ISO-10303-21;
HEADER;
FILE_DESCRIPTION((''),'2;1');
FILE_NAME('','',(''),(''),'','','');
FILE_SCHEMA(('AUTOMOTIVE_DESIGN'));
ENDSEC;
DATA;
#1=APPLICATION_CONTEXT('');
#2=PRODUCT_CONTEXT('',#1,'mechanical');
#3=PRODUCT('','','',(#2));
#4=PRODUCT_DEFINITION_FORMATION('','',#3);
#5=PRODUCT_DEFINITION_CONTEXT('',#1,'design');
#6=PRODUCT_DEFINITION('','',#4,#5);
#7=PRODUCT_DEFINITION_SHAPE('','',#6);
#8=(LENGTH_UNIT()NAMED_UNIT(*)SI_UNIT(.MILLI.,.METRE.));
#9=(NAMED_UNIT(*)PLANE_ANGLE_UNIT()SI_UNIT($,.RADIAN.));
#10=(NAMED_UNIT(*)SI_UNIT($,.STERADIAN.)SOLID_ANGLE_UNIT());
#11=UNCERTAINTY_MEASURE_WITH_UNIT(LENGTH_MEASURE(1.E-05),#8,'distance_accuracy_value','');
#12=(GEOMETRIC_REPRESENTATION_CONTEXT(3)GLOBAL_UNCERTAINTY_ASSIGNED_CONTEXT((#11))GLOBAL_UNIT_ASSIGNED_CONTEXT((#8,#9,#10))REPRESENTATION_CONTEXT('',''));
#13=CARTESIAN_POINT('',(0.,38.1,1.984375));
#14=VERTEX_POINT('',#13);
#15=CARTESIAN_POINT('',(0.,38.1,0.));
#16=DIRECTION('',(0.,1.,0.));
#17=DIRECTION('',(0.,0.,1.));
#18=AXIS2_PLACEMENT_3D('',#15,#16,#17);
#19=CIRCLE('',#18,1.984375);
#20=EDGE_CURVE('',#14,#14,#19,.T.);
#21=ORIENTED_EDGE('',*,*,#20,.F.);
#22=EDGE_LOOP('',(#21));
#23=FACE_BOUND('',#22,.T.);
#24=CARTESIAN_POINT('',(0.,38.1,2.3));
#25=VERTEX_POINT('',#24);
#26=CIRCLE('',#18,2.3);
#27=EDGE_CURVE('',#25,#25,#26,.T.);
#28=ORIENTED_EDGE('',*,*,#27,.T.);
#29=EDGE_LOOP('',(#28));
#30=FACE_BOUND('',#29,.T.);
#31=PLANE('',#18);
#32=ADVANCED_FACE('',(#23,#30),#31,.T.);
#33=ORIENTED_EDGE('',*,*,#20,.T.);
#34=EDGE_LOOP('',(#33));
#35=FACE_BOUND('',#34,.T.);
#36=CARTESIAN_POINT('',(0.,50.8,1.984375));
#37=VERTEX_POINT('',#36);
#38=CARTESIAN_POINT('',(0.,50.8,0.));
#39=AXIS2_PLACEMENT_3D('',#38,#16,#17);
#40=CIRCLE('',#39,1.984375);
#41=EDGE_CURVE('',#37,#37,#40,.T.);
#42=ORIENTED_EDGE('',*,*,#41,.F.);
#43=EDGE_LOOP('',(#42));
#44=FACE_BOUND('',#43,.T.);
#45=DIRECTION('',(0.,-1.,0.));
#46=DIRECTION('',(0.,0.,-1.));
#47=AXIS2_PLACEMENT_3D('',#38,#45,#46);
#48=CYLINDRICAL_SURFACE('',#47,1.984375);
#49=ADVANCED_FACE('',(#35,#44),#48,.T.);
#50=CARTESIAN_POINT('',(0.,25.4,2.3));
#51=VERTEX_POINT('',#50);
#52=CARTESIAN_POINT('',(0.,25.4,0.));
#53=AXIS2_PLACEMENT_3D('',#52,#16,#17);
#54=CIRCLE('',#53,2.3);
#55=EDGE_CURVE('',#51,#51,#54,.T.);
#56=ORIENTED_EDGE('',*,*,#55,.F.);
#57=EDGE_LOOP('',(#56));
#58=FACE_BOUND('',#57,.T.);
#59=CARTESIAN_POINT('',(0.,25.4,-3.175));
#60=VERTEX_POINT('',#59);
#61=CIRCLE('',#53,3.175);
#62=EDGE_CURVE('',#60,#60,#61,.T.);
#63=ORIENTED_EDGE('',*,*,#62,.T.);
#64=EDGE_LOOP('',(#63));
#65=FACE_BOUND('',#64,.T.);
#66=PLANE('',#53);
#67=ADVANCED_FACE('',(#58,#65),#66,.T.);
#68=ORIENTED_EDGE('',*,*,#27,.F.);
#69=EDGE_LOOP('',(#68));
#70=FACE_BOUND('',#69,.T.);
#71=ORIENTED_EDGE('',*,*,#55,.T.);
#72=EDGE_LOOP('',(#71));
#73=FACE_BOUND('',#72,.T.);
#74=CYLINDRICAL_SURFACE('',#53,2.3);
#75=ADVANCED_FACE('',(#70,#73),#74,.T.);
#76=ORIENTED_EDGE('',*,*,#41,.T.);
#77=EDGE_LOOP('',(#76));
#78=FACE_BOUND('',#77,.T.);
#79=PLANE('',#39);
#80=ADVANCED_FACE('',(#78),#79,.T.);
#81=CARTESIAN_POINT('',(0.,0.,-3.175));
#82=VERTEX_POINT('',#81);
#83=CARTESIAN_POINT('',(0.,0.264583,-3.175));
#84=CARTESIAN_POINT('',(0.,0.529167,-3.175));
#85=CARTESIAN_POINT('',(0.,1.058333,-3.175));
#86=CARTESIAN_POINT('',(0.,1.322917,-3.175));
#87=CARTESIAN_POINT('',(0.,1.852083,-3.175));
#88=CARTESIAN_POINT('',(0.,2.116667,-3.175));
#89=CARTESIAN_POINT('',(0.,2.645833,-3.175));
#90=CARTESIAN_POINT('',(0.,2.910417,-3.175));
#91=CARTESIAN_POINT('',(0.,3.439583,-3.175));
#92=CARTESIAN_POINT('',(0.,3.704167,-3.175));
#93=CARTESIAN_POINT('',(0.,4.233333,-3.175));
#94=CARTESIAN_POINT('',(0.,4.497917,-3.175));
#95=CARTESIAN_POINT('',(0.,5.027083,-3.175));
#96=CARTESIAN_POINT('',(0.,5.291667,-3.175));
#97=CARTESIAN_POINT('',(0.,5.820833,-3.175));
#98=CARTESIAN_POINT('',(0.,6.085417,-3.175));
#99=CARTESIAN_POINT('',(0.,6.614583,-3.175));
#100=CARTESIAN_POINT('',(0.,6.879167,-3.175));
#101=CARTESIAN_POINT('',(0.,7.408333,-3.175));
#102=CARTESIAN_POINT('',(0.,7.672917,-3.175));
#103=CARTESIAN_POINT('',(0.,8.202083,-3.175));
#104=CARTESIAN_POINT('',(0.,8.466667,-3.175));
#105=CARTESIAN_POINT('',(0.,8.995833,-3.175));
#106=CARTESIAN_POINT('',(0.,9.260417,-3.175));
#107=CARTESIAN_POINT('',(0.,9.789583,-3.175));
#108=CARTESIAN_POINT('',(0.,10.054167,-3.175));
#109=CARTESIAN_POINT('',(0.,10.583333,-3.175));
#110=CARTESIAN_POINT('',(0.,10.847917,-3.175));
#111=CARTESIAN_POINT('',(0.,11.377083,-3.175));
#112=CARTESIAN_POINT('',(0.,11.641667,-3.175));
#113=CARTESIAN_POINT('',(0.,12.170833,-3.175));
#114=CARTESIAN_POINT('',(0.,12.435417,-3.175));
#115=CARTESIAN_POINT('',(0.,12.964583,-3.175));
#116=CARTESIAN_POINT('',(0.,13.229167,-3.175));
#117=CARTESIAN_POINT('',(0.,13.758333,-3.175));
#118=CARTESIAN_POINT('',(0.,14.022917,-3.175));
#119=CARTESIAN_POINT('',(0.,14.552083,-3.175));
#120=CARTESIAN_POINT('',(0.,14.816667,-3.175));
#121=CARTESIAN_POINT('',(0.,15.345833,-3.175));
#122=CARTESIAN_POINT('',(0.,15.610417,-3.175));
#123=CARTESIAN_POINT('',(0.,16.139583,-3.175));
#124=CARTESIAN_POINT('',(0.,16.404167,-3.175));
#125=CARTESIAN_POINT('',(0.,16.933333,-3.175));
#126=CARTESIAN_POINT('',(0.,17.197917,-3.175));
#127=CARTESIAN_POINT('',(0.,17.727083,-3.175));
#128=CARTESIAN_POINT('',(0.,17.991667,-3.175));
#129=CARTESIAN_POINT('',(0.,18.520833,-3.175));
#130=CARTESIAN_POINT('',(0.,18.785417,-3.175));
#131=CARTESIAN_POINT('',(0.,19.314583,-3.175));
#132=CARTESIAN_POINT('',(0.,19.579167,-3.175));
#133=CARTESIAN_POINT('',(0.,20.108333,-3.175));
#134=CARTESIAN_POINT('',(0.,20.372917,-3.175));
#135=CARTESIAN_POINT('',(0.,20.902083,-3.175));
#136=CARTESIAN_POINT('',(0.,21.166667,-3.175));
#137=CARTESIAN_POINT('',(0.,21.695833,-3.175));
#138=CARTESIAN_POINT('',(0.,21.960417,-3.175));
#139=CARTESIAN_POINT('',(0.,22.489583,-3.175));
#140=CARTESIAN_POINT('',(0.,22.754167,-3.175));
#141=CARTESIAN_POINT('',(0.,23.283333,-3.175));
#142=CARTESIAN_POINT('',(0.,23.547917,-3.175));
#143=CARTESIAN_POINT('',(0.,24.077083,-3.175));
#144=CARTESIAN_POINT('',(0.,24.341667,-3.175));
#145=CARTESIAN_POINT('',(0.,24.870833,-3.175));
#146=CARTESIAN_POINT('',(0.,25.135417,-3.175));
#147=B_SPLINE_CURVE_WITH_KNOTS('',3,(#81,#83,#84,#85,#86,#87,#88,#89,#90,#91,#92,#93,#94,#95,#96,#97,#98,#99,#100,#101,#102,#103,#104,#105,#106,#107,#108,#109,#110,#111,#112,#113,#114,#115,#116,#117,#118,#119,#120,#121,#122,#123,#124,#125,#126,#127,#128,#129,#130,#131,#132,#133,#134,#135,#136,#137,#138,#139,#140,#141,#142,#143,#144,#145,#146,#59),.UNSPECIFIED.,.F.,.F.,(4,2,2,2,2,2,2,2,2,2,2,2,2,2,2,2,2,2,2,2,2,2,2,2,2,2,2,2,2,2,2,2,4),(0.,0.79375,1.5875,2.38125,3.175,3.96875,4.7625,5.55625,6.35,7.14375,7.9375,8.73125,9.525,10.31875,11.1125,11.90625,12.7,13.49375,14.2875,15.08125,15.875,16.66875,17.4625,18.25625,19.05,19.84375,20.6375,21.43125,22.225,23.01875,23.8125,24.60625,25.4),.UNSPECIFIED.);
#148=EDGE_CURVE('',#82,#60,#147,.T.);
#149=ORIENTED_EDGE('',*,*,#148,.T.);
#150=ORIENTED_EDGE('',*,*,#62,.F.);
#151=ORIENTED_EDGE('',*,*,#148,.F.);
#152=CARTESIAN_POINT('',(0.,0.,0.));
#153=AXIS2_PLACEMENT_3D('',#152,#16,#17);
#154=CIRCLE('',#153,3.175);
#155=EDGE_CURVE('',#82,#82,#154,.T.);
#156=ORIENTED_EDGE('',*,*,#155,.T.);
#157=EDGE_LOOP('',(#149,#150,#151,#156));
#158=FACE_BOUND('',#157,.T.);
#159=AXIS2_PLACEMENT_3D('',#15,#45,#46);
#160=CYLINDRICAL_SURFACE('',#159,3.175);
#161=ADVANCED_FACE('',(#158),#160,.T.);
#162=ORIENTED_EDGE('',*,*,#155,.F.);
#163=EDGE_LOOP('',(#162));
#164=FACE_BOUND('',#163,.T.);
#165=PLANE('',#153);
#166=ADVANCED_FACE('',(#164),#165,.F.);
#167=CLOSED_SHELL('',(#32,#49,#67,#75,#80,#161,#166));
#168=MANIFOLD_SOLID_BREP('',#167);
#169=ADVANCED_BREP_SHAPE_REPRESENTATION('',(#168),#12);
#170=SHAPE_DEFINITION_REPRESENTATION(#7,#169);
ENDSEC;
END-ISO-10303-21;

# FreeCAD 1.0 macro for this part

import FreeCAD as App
import Part
import Sketcher
Q = App.Units.Quantity

doc = App.newDocument("Part")
body = doc.addObject("PartDesign::Body", "Body")

# Sketch on XZ plane
sketch1 = doc.addObject("Sketcher::SketchObject", "Sketch")
body.addObject(sketch1)
sketch1.AttachmentSupport = (doc.XZ_Plane, [""])
sketch1.MapMode = "FlatFace"
sketch1.addGeometry(Part.Circle(App.Vector(0, 0, 0), App.Vector(0, 0, 1), 3.2), False)
sketch1.addConstraint([
    Sketcher.Constraint("Coincident", 0, 3, -1, 1),
    Sketcher.Constraint("Diameter", 0, Q("0.25 in")),
])
pad1 = doc.addObject("PartDesign::Pad", "Pad")
body.addObject(pad1)
pad1.Profile = sketch1
pad1.Length = Q("1.5 in")
pad1.Reversed = True

# Sketch on XZ plane
sketch2 = doc.addObject("Sketcher::SketchObject", "Sketch001")
body.addObject(sketch2)
sketch2.AttachmentSupport = (doc.XZ_Plane, [""])
sketch2.MapMode = "FlatFace"
sketch2.AttachmentOffset = App.Placement(App.Vector(0, 0, -1.5 * 25.4), App.Rotation())
sketch2.addGeometry([
    Part.Circle(App.Vector(0, 0, 0), App.Vector(0, 0, 1), 3.6),
    Part.Circle(App.Vector(0, 0, 0), App.Vector(0, 0, 1), 2.3),
], False)
sketch2.addConstraint([
    Sketcher.Constraint("Coincident", 0, 3, -1, 1),
    Sketcher.Constraint("Coincident", 1, 3, -1, 1),
    Sketcher.Constraint("Diameter", 1, Q("4.6 mm")),
    Sketcher.Constraint("Diameter", 0, Q("7.182615 mm")),
])
pocket1 = doc.addObject("PartDesign::Pocket", "Pocket")
body.addObject(pocket1)
pocket1.Profile = sketch2
pocket1.Length = Q("0.5 in")
pocket1.Reversed = True

# Sketch on XZ plane
sketch3 = doc.addObject("Sketcher::SketchObject", "Sketch002")
body.addObject(sketch3)
sketch3.AttachmentSupport = (doc.XZ_Plane, [""])
sketch3.MapMode = "FlatFace"
sketch3.AttachmentOffset = App.Placement(App.Vector(0, 0, -1.5 * 25.4), App.Rotation())
sketch3.addGeometry(Part.Circle(App.Vector(0, 0, 0), App.Vector(0, 0, 1), 2), False)
sketch3.addConstraint([
    Sketcher.Constraint("Coincident", 0, 3, -1, 1),
    Sketcher.Constraint("Diameter", 0, Q("0.15625 in")),
])
pad2 = doc.addObject("PartDesign::Pad", "Pad001")
body.addObject(pad2)
pad2.Profile = sketch3
pad2.Length = Q("0.5 in")
pad2.Reversed = True

doc.recompute()
